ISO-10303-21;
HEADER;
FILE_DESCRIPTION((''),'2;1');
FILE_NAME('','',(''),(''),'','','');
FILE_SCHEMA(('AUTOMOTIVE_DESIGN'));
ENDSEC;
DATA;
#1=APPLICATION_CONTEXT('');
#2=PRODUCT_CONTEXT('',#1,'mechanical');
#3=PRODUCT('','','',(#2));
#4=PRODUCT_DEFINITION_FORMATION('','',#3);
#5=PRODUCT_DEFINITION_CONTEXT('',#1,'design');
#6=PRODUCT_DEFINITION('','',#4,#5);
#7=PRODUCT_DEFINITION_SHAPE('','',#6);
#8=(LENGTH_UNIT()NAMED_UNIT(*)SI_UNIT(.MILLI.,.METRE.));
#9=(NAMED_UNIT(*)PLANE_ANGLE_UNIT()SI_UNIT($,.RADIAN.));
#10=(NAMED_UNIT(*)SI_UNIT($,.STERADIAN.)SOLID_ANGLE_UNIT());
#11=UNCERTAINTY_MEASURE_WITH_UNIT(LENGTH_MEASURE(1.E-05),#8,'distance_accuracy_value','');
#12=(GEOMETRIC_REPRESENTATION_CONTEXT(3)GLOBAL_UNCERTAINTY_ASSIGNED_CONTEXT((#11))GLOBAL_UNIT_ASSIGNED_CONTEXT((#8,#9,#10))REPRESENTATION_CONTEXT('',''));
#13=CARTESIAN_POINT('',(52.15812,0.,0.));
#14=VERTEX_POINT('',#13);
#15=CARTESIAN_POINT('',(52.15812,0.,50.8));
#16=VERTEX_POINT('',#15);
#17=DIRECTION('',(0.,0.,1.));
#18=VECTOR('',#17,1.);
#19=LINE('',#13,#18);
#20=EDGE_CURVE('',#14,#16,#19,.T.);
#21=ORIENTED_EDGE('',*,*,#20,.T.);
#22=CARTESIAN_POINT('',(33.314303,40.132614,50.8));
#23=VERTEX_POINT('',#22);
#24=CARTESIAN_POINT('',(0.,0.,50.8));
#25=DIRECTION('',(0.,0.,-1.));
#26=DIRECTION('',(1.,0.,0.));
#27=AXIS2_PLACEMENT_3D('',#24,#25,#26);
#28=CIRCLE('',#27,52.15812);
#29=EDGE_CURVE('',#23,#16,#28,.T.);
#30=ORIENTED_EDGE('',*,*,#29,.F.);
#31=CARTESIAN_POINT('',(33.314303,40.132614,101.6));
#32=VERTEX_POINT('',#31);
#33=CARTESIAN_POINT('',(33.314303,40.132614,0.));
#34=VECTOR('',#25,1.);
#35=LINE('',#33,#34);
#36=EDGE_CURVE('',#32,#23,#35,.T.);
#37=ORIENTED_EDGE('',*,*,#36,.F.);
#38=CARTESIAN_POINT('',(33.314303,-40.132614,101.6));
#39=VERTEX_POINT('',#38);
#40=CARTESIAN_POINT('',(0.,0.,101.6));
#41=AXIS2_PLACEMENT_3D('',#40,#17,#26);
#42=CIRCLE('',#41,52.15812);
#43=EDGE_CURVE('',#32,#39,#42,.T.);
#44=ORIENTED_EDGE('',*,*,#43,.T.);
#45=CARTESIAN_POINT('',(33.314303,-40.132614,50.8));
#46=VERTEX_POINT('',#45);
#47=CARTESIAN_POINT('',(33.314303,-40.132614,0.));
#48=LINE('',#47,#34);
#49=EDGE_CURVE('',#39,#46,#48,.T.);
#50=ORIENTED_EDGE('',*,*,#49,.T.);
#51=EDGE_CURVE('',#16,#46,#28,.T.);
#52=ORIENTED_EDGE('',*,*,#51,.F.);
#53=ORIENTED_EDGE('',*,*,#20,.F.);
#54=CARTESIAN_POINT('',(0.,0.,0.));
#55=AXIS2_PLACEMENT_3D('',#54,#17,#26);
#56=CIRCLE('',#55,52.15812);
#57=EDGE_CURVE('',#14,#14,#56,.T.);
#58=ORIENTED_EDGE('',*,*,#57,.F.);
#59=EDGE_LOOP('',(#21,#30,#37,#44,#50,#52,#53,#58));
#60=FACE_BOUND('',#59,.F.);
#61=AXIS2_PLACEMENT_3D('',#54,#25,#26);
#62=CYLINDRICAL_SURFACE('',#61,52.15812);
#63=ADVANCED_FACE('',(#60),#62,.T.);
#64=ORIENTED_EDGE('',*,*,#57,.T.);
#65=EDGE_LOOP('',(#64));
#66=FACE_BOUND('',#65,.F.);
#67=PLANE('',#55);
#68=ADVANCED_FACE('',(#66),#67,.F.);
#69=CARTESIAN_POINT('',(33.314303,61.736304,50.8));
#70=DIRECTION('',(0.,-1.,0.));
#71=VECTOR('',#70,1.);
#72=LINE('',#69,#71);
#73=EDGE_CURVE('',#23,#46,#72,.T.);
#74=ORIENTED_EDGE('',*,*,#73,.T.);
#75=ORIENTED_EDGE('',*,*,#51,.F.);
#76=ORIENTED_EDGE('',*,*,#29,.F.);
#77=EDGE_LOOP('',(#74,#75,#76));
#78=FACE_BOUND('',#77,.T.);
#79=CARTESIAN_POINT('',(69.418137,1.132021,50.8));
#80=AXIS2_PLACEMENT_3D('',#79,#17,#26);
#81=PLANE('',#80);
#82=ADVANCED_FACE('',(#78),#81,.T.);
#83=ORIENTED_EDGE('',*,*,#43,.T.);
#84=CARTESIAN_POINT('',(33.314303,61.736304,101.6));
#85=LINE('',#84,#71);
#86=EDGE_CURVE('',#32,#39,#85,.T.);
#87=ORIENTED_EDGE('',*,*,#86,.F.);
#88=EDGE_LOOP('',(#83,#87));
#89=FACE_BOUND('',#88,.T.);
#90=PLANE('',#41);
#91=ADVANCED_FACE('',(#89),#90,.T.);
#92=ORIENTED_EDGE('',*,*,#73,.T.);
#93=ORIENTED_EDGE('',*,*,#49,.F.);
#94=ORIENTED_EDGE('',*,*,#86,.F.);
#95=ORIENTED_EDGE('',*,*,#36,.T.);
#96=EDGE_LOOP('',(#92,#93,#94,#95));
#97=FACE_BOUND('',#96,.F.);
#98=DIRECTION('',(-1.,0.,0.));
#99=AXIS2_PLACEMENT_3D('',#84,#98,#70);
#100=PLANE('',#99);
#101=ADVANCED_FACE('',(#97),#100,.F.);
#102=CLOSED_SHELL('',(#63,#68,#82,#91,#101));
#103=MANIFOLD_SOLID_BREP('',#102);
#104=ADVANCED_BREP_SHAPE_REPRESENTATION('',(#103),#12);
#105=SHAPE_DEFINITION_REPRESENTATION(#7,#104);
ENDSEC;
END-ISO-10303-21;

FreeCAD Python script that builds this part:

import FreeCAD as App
import Part
import Sketcher
Q = App.Units.Quantity


def add_polygon(sketch, points):
    """Adds a closed chain of lines whose ends are joined by coincident constraints."""
    first, n = sketch.GeometryCount, len(points)
    for a, b in zip(points, points[1:] + points[:1]):
        sketch.addGeometry(Part.LineSegment(App.Vector(*a, 0), App.Vector(*b, 0)), False)
    for i in range(n):
        sketch.addConstraint(Sketcher.Constraint("Coincident", first + i, 2, first + (i + 1) % n, 1))

doc = App.newDocument("Part")
body = doc.addObject("PartDesign::Body", "Body")

sketch1 = body.newObject("Sketcher::SketchObject", "Sketch")
sketch1.AttachmentSupport = (doc.getObject("XY_Plane"), [""])
sketch1.MapMode = "FlatFace"
sketch1.addGeometry(Part.Circle(App.Vector(0, 0, 0), App.Vector(0, 0, 1), 52.15812), False)
sketch1.addConstraint(Sketcher.Constraint("Coincident", 0, 3, -1, 1))
sketch1.addConstraint(Sketcher.Constraint("Diameter", 0, Q("104.316239 mm")))
pad1 = body.newObject("PartDesign::Pad", "Pad")
pad1.Profile = sketch1
pad1.Length = Q("4 in")

sketch2 = body.newObject("Sketcher::SketchObject", "Sketch001")
sketch2.AttachmentSupport = (doc.getObject("XY_Plane"), [""])
sketch2.MapMode = "FlatFace"
sketch2.AttachmentOffset = App.Placement(App.Vector(0, 0, 4 * 25.4), App.Rotation())
add_polygon(sketch2, [(101.80667, 61.736304), (33.314303, 61.736304), (33.314303, -59.406631), (101.80667, -59.406631)])
sketch2.addConstraint(Sketcher.Constraint("Horizontal", 0))
sketch2.addConstraint(Sketcher.Constraint("Vertical", 1))
sketch2.addConstraint(Sketcher.Constraint("Horizontal", 2))
sketch2.addConstraint(Sketcher.Constraint("Vertical", 3))
sketch2.addConstraint(Sketcher.Constraint("DistanceX", 0, 2, 0, 1, Q("68.492368 mm")))
sketch2.addConstraint(Sketcher.Constraint("DistanceY", 1, 2, 1, 1, Q("121.142935 mm")))
sketch2.addConstraint(Sketcher.Constraint("DistanceY", 1, 2, -1, 1, Q("59.406631 mm")))
sketch2.addConstraint(Sketcher.Constraint("DistanceX", -1, 1, 2, 2, Q("101.80667 mm")))
pocket1 = body.newObject("PartDesign::Pocket", "Pocket")
pocket1.Profile = sketch2
pocket1.Length = Q("2 in")

doc.recompute()
